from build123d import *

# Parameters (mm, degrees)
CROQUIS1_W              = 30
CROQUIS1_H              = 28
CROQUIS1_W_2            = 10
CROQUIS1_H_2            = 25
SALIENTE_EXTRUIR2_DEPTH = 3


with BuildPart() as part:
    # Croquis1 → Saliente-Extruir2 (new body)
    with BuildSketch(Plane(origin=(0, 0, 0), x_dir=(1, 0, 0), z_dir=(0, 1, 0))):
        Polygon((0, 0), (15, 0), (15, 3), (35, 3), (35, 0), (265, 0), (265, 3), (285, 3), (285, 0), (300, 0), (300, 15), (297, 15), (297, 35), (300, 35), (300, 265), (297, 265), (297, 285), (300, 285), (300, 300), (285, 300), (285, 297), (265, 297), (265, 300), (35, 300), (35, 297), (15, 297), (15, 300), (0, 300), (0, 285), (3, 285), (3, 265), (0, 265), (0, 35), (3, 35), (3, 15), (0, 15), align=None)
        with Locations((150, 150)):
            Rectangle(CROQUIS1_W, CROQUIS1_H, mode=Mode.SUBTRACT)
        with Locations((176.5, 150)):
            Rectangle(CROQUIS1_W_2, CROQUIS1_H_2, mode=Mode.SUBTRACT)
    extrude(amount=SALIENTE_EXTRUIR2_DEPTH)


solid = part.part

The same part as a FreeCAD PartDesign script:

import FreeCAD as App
import Part
import Sketcher
from FreeCAD import Vector
Q = App.Units.Quantity


def add_polygon(sketch, points):
    """Adds a closed chain of lines whose ends are joined by coincident constraints."""
    first, n = sketch.GeometryCount, len(points)
    for a, b in zip(points, points[1:] + points[:1]):
        sketch.addGeometry(Part.LineSegment(App.Vector(*a, 0), App.Vector(*b, 0)), False)
    for i in range(n):
        sketch.addConstraint(Sketcher.Constraint("Coincident", first + i, 2, first + (i + 1) % n, 1))

doc = App.newDocument("Part")
body = doc.addObject("PartDesign::Body", "Body")

# Sketch on XZ plane
sketch1 = body.newObject("Sketcher::SketchObject", "Sketch")
sketch1.AttachmentSupport = (doc.getObject("XZ_Plane"), [""])
sketch1.MapMode = "FlatFace"
add_polygon(sketch1, [(0, 0), (15, 0), (15, -3), (35, -3), (35, 0), (265, 0), (265, -3), (285, -3), (285, 0), (300, 0), (300, -15), (297, -15), (297, -35), (300, -35), (300, -265), (297, -265), (297, -285), (300, -285), (300, -300), (285, -300), (285, -297), (265, -297), (265, -300), (35, -300), (35, -297), (15, -297), (15, -300), (0, -300), (0, -285), (3, -285), (3, -265), (0, -265), (0, -35), (3, -35), (3, -15), (0, -15)])  # lines 0-35
add_polygon(sketch1, [(165, -136), (135, -136), (135, -164), (165, -164)])  # lines 36-39
add_polygon(sketch1, [(181.5, -137.5), (171.5, -137.5), (171.5, -162.5), (181.5, -162.5)])  # lines 40-43
sketch1.addConstraint(Sketcher.Constraint("Horizontal", 0))
sketch1.addConstraint(Sketcher.Constraint("Vertical", 1))
sketch1.addConstraint(Sketcher.Constraint("Horizontal", 2))
sketch1.addConstraint(Sketcher.Constraint("Vertical", 3))
sketch1.addConstraint(Sketcher.Constraint("Horizontal", 4))
sketch1.addConstraint(Sketcher.Constraint("Vertical", 5))
sketch1.addConstraint(Sketcher.Constraint("Horizontal", 6))
sketch1.addConstraint(Sketcher.Constraint("Vertical", 7))
sketch1.addConstraint(Sketcher.Constraint("Horizontal", 8))
sketch1.addConstraint(Sketcher.Constraint("Vertical", 9))
sketch1.addConstraint(Sketcher.Constraint("Horizontal", 10))
sketch1.addConstraint(Sketcher.Constraint("Vertical", 11))
sketch1.addConstraint(Sketcher.Constraint("Horizontal", 12))
sketch1.addConstraint(Sketcher.Constraint("Vertical", 13))
sketch1.addConstraint(Sketcher.Constraint("Horizontal", 14))
sketch1.addConstraint(Sketcher.Constraint("Vertical", 15))
sketch1.addConstraint(Sketcher.Constraint("Horizontal", 16))
sketch1.addConstraint(Sketcher.Constraint("Vertical", 17))
sketch1.addConstraint(Sketcher.Constraint("Horizontal", 18))
sketch1.addConstraint(Sketcher.Constraint("Vertical", 19))
sketch1.addConstraint(Sketcher.Constraint("Horizontal", 20))
sketch1.addConstraint(Sketcher.Constraint("Vertical", 21))
sketch1.addConstraint(Sketcher.Constraint("Horizontal", 22))
sketch1.addConstraint(Sketcher.Constraint("Vertical", 23))
sketch1.addConstraint(Sketcher.Constraint("Horizontal", 24))
sketch1.addConstraint(Sketcher.Constraint("Vertical", 25))
sketch1.addConstraint(Sketcher.Constraint("Horizontal", 26))
sketch1.addConstraint(Sketcher.Constraint("Vertical", 27))
sketch1.addConstraint(Sketcher.Constraint("Horizontal", 28))
sketch1.addConstraint(Sketcher.Constraint("Vertical", 29))
sketch1.addConstraint(Sketcher.Constraint("Horizontal", 30))
sketch1.addConstraint(Sketcher.Constraint("Vertical", 31))
sketch1.addConstraint(Sketcher.Constraint("Horizontal", 32))
sketch1.addConstraint(Sketcher.Constraint("Vertical", 33))
sketch1.addConstraint(Sketcher.Constraint("Horizontal", 34))
sketch1.addConstraint(Sketcher.Constraint("Vertical", 35))
sketch1.addConstraint(Sketcher.Constraint("Horizontal", 36))
sketch1.addConstraint(Sketcher.Constraint("Vertical", 37))
sketch1.addConstraint(Sketcher.Constraint("Horizontal", 38))
sketch1.addConstraint(Sketcher.Constraint("Vertical", 39))
sketch1.addConstraint(Sketcher.Constraint("Horizontal", 40))
sketch1.addConstraint(Sketcher.Constraint("Vertical", 41))
sketch1.addConstraint(Sketcher.Constraint("Horizontal", 42))
sketch1.addConstraint(Sketcher.Constraint("Vertical", 43))
sketch1.addConstraint(Sketcher.Constraint("Coincident", 35, 2, -1, 1))
sketch1.addConstraint(Sketcher.Constraint("PointOnObject", 3, 2, -1))
sketch1.addConstraint(Sketcher.Constraint("PointOnObject", 7, 2, -1))
sketch1.addConstraint(Sketcher.Constraint("PointOnObject", 26, 2, -2))
sketch1.addConstraint(Sketcher.Constraint("PointOnObject", 30, 2, -2))
sketch1.addConstraint(Sketcher.Constraint("Horizontal", 2, 2, 5, 2))
sketch1.addConstraint(Sketcher.Constraint("Horizontal", 18, 2, 21, 2))
sketch1.addConstraint(Sketcher.Constraint("Horizontal", 20, 2, 23, 2))
sketch1.addConstraint(Sketcher.Constraint("Horizontal", 22, 2, 25, 2))
sketch1.addConstraint(Sketcher.Constraint("Horizontal", 16, 2, 27, 2))
sketch1.addConstraint(Sketcher.Constraint("Horizontal", 14, 2, 29, 2))
sketch1.addConstraint(Sketcher.Constraint("Horizontal", 12, 2, 31, 2))
sketch1.addConstraint(Sketcher.Constraint("Horizontal", 10, 2, 33, 2))
sketch1.addConstraint(Sketcher.Constraint("Vertical", 9, 2, 12, 2))
sketch1.addConstraint(Sketcher.Constraint("Vertical", 11, 2, 14, 2))
sketch1.addConstraint(Sketcher.Constraint("Vertical", 13, 2, 16, 2))
sketch1.addConstraint(Sketcher.Constraint("Vertical", 7, 2, 18, 2))
sketch1.addConstraint(Sketcher.Constraint("Vertical", 5, 2, 20, 2))
sketch1.addConstraint(Sketcher.Constraint("Vertical", 3, 2, 22, 2))
sketch1.addConstraint(Sketcher.Constraint("Vertical", 1, 2, 24, 2))
sketch1.addConstraint(Sketcher.Constraint("Vertical", 29, 2, 32, 2))
sketch1.addConstraint(Sketcher.Constraint("Equal", 2, 6))
sketch1.addConstraint(Sketcher.Constraint("Equal", 0, 8))
sketch1.addConstraint(Sketcher.Constraint("Equal", 16, 28))
sketch1.addConstraint(Sketcher.Constraint("Equal", 34, 1))
sketch1.addConstraint(Sketcher.Constraint("Equal", 26, 9))
sketch1.addConstraint(Sketcher.Constraint("Equal", 24, 11))
sketch1.addConstraint(Sketcher.Constraint("Equal", 22, 13))
sketch1.addConstraint(Sketcher.Constraint("Equal", 11, 15))
sketch1.addConstraint(Sketcher.Constraint("Equal", 9, 17))
sketch1.addConstraint(Sketcher.Constraint("Equal", 7, 19))
sketch1.addConstraint(Sketcher.Constraint("DistanceX", 0, 1, 0, 2, Q("15 mm")))
sketch1.addConstraint(Sketcher.Constraint("DistanceX", 2, 1, 2, 2, Q("20 mm")))
sketch1.addConstraint(Sketcher.Constraint("DistanceX", 4, 1, 4, 2, Q("230 mm")))
sketch1.addConstraint(Sketcher.Constraint("DistanceX", 10, 2, 10, 1, Q("3 mm")))
sketch1.addConstraint(Sketcher.Constraint("DistanceX", 36, 2, 36, 1, Q("30 mm")))
sketch1.addConstraint(Sketcher.Constraint("DistanceX", 40, 2, 40, 1, Q("10 mm")))
sketch1.addConstraint(Sketcher.Constraint("DistanceY", 37, 2, 37, 1, Q("28 mm")))
sketch1.addConstraint(Sketcher.Constraint("DistanceY", 41, 2, 41, 1, Q("25 mm")))
sketch1.addConstraint(Sketcher.Constraint("DistanceX", -1, 1, 36, 2, Q("135 mm")))
sketch1.addConstraint(Sketcher.Constraint("DistanceY", 36, 2, -1, 1, Q("136 mm")))
sketch1.addConstraint(Sketcher.Constraint("DistanceX", -1, 1, 40, 2, Q("171.5 mm")))
sketch1.addConstraint(Sketcher.Constraint("DistanceY", 40, 2, -1, 1, Q("137.5 mm")))
pad1 = body.newObject("PartDesign::Pad", "Pad")
pad1.Profile = sketch1
pad1.Length = 3
pad1.Reversed = True

doc.recompute()
